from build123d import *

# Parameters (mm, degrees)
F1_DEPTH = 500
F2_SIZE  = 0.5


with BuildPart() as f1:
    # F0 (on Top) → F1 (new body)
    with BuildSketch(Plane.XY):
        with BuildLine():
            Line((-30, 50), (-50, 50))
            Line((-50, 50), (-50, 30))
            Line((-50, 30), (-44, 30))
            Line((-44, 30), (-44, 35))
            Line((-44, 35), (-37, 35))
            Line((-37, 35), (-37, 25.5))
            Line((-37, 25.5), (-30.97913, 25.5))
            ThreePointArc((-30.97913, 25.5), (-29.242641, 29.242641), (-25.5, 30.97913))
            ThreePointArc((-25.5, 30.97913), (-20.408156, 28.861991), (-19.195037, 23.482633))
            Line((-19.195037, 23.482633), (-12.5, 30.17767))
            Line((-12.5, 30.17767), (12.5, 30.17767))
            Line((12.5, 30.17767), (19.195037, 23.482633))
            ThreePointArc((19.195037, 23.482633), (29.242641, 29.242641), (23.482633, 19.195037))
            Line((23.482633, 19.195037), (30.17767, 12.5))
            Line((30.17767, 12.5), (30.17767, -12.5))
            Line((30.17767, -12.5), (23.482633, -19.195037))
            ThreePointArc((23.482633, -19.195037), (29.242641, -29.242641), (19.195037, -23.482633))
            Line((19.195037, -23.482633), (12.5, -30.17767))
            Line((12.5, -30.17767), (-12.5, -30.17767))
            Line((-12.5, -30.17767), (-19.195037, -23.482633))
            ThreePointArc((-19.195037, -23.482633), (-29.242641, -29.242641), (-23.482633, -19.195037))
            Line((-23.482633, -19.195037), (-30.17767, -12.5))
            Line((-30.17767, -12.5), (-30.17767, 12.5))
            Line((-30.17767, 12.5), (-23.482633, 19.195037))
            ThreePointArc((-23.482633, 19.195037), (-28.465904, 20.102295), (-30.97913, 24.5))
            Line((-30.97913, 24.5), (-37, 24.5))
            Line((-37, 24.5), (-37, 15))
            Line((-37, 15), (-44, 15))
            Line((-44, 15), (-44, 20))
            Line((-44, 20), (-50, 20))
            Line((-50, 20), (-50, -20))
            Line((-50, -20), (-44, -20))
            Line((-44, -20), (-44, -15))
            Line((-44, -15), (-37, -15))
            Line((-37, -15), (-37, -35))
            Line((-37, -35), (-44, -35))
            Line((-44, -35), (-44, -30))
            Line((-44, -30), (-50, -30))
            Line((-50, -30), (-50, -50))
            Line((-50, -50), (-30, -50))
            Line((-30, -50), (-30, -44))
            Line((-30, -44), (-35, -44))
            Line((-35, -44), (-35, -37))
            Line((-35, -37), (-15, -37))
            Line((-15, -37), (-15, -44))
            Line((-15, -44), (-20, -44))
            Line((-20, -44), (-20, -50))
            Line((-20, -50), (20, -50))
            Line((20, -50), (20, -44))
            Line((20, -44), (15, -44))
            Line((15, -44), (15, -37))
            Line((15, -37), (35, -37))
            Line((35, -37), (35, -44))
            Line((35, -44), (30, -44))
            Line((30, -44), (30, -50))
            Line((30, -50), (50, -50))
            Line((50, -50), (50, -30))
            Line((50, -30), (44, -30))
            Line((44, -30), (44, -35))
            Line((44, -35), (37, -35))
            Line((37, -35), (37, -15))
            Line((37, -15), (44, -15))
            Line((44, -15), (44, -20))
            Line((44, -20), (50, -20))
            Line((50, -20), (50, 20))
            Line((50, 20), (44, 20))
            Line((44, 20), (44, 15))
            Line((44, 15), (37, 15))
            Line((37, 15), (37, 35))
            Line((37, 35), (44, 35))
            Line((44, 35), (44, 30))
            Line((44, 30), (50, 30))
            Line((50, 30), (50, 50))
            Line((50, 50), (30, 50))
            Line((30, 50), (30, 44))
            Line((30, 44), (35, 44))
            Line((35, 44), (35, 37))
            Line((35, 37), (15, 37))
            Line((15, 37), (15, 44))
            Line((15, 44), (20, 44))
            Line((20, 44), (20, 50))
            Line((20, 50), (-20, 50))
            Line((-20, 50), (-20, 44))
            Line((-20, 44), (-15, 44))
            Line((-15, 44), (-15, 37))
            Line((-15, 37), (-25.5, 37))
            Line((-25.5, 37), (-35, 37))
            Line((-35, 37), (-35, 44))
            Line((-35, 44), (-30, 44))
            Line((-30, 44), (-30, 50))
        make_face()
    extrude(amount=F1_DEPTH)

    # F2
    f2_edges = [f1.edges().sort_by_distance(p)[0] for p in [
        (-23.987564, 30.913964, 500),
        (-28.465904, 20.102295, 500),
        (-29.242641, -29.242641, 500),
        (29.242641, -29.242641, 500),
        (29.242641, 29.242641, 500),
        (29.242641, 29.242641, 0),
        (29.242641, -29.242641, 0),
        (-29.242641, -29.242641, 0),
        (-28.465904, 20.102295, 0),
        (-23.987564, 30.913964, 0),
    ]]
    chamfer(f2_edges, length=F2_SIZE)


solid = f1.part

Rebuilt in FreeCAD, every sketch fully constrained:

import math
import FreeCAD as App
import Part
import Sketcher
from FreeCAD import Vector
Q = App.Units.Quantity


def edges_at(feature, points):
    """Names of the edges that pass closest to the given points."""
    edges = feature.Shape.Edges
    near = lambda p: min(range(len(edges)), key=lambda i: edges[i].distToShape(Part.Vertex(*p))[0])
    return sorted({f"Edge{near(p) + 1}" for p in points})

doc = App.newDocument("Part")
body = doc.addObject("PartDesign::Body", "Body")

# Sketch on XY plane
sketch1 = body.newObject("Sketcher::SketchObject", "Sketch")
sketch1.AttachmentSupport = (doc.getObject("XY_Plane"), [""])
sketch1.MapMode = "FlatFace"
sketch1.addGeometry([
    Part.LineSegment(Vector(-30, 50, 0), Vector(-50, 50, 0)),  # 0
    Part.LineSegment(Vector(-50, 50, 0), Vector(-50, 30, 0)),  # 1
    Part.LineSegment(Vector(-50, 30, 0), Vector(-44, 30, 0)),  # 2
    Part.LineSegment(Vector(-44, 30, 0), Vector(-44, 35, 0)),  # 3
    Part.LineSegment(Vector(-44, 35, 0), Vector(-37, 35, 0)),  # 4
    Part.LineSegment(Vector(-37, 35, 0), Vector(-37, 26, 0)),  # 5
    Part.LineSegment(Vector(-37, 26, 0), Vector(-31, 26, 0)),  # 6
    Part.ArcOfCircle(Part.Circle(Vector(-25, 25, 0), Vector(0, 0, 1), 6), math.radians(95), math.radians(175)),  # 7
    Part.ArcOfCircle(Part.Circle(Vector(-25, 25, 0), Vector(0, 0, 1), 6), math.radians(-15), math.radians(95)),  # 8
    Part.LineSegment(Vector(-19, 23, 0), Vector(-12, 30, 0)),  # 9
    Part.LineSegment(Vector(-12, 30, 0), Vector(12, 30, 0)),  # 10
    Part.LineSegment(Vector(12, 30, 0), Vector(19, 23, 0)),  # 11
    Part.ArcOfCircle(Part.Circle(Vector(25, 25, 0), Vector(0, 0, 1), 6), math.radians(-105), math.radians(195)),  # 12
    Part.LineSegment(Vector(23, 19, 0), Vector(30, 12, 0)),  # 13
    Part.LineSegment(Vector(30, 12, 0), Vector(30, -12, 0)),  # 14
    Part.LineSegment(Vector(30, -12, 0), Vector(23, -19, 0)),  # 15
    Part.ArcOfCircle(Part.Circle(Vector(25, -25, 0), Vector(0, 0, 1), 6), math.radians(165), math.radians(465)),  # 16
    Part.LineSegment(Vector(19, -23, 0), Vector(12, -30, 0)),  # 17
    Part.LineSegment(Vector(12, -30, 0), Vector(-12, -30, 0)),  # 18
    Part.LineSegment(Vector(-12, -30, 0), Vector(-19, -23, 0)),  # 19
    Part.ArcOfCircle(Part.Circle(Vector(-25, -25, 0), Vector(0, 0, 1), 6), math.radians(75), math.radians(375)),  # 20
    Part.LineSegment(Vector(-23, -19, 0), Vector(-30, -12, 0)),  # 21
    Part.LineSegment(Vector(-30, -12, 0), Vector(-30, 12, 0)),  # 22
    Part.LineSegment(Vector(-30, 12, 0), Vector(-23, 19, 0)),  # 23
    Part.ArcOfCircle(Part.Circle(Vector(-25, 25, 0), Vector(0, 0, 1), 6), math.radians(-175), math.radians(-75)),  # 24
    Part.LineSegment(Vector(-31, 24, 0), Vector(-37, 24, 0)),  # 25
    Part.LineSegment(Vector(-37, 24, 0), Vector(-37, 15, 0)),  # 26
    Part.LineSegment(Vector(-37, 15, 0), Vector(-44, 15, 0)),  # 27
    Part.LineSegment(Vector(-44, 15, 0), Vector(-44, 20, 0)),  # 28
    Part.LineSegment(Vector(-44, 20, 0), Vector(-50, 20, 0)),  # 29
    Part.LineSegment(Vector(-50, 20, 0), Vector(-50, -20, 0)),  # 30
    Part.LineSegment(Vector(-50, -20, 0), Vector(-44, -20, 0)),  # 31
    Part.LineSegment(Vector(-44, -20, 0), Vector(-44, -15, 0)),  # 32
    Part.LineSegment(Vector(-44, -15, 0), Vector(-37, -15, 0)),  # 33
    Part.LineSegment(Vector(-37, -15, 0), Vector(-37, -35, 0)),  # 34
    Part.LineSegment(Vector(-37, -35, 0), Vector(-44, -35, 0)),  # 35
    Part.LineSegment(Vector(-44, -35, 0), Vector(-44, -30, 0)),  # 36
    Part.LineSegment(Vector(-44, -30, 0), Vector(-50, -30, 0)),  # 37
    Part.LineSegment(Vector(-50, -30, 0), Vector(-50, -50, 0)),  # 38
    Part.LineSegment(Vector(-50, -50, 0), Vector(-30, -50, 0)),  # 39
    Part.LineSegment(Vector(-30, -50, 0), Vector(-30, -44, 0)),  # 40
    Part.LineSegment(Vector(-30, -44, 0), Vector(-35, -44, 0)),  # 41
    Part.LineSegment(Vector(-35, -44, 0), Vector(-35, -37, 0)),  # 42
    Part.LineSegment(Vector(-35, -37, 0), Vector(-15, -37, 0)),  # 43
    Part.LineSegment(Vector(-15, -37, 0), Vector(-15, -44, 0)),  # 44
    Part.LineSegment(Vector(-15, -44, 0), Vector(-20, -44, 0)),  # 45
    Part.LineSegment(Vector(-20, -44, 0), Vector(-20, -50, 0)),  # 46
    Part.LineSegment(Vector(-20, -50, 0), Vector(20, -50, 0)),  # 47
    Part.LineSegment(Vector(20, -50, 0), Vector(20, -44, 0)),  # 48
    Part.LineSegment(Vector(20, -44, 0), Vector(15, -44, 0)),  # 49
    Part.LineSegment(Vector(15, -44, 0), Vector(15, -37, 0)),  # 50
    Part.LineSegment(Vector(15, -37, 0), Vector(35, -37, 0)),  # 51
    Part.LineSegment(Vector(35, -37, 0), Vector(35, -44, 0)),  # 52
    Part.LineSegment(Vector(35, -44, 0), Vector(30, -44, 0)),  # 53
    Part.LineSegment(Vector(30, -44, 0), Vector(30, -50, 0)),  # 54
    Part.LineSegment(Vector(30, -50, 0), Vector(50, -50, 0)),  # 55
    Part.LineSegment(Vector(50, -50, 0), Vector(50, -30, 0)),  # 56
    Part.LineSegment(Vector(50, -30, 0), Vector(44, -30, 0)),  # 57
    Part.LineSegment(Vector(44, -30, 0), Vector(44, -35, 0)),  # 58
    Part.LineSegment(Vector(44, -35, 0), Vector(37, -35, 0)),  # 59
    Part.LineSegment(Vector(37, -35, 0), Vector(37, -15, 0)),  # 60
    Part.LineSegment(Vector(37, -15, 0), Vector(44, -15, 0)),  # 61
    Part.LineSegment(Vector(44, -15, 0), Vector(44, -20, 0)),  # 62
    Part.LineSegment(Vector(44, -20, 0), Vector(50, -20, 0)),  # 63
    Part.LineSegment(Vector(50, -20, 0), Vector(50, 20, 0)),  # 64
    Part.LineSegment(Vector(50, 20, 0), Vector(44, 20, 0)),  # 65
    Part.LineSegment(Vector(44, 20, 0), Vector(44, 15, 0)),  # 66
    Part.LineSegment(Vector(44, 15, 0), Vector(37, 15, 0)),  # 67
    Part.LineSegment(Vector(37, 15, 0), Vector(37, 35, 0)),  # 68
    Part.LineSegment(Vector(37, 35, 0), Vector(44, 35, 0)),  # 69
    Part.LineSegment(Vector(44, 35, 0), Vector(44, 30, 0)),  # 70
    Part.LineSegment(Vector(44, 30, 0), Vector(50, 30, 0)),  # 71
    Part.LineSegment(Vector(50, 30, 0), Vector(50, 50, 0)),  # 72
    Part.LineSegment(Vector(50, 50, 0), Vector(30, 50, 0)),  # 73
    Part.LineSegment(Vector(30, 50, 0), Vector(30, 44, 0)),  # 74
    Part.LineSegment(Vector(30, 44, 0), Vector(35, 44, 0)),  # 75
    Part.LineSegment(Vector(35, 44, 0), Vector(35, 37, 0)),  # 76
    Part.LineSegment(Vector(35, 37, 0), Vector(15, 37, 0)),  # 77
    Part.LineSegment(Vector(15, 37, 0), Vector(15, 44, 0)),  # 78
    Part.LineSegment(Vector(15, 44, 0), Vector(20, 44, 0)),  # 79
    Part.LineSegment(Vector(20, 44, 0), Vector(20, 50, 0)),  # 80
    Part.LineSegment(Vector(20, 50, 0), Vector(-20, 50, 0)),  # 81
    Part.LineSegment(Vector(-20, 50, 0), Vector(-20, 44, 0)),  # 82
    Part.LineSegment(Vector(-20, 44, 0), Vector(-15, 44, 0)),  # 83
    Part.LineSegment(Vector(-15, 44, 0), Vector(-15, 37, 0)),  # 84
    Part.LineSegment(Vector(-15, 37, 0), Vector(-35, 37, 0)),  # 85
    Part.LineSegment(Vector(-35, 37, 0), Vector(-35, 44, 0)),  # 86
    Part.LineSegment(Vector(-35, 44, 0), Vector(-30, 44, 0)),  # 87
    Part.LineSegment(Vector(-30, 44, 0), Vector(-30, 50, 0)),  # 88
], False)
sketch1.addConstraint([
    Sketcher.Constraint("Coincident", 0, 2, 1, 1),
    Sketcher.Constraint("Coincident", 1, 2, 2, 1),
    Sketcher.Constraint("Coincident", 2, 2, 3, 1),
    Sketcher.Constraint("Coincident", 3, 2, 4, 1),
    Sketcher.Constraint("Coincident", 4, 2, 5, 1),
    Sketcher.Constraint("Coincident", 5, 2, 6, 1),
    Sketcher.Constraint("Coincident", 6, 2, 7, 2),
    Sketcher.Constraint("Tangent", 7, 1, 8, 2),
    Sketcher.Constraint("Coincident", 8, 1, 9, 1),
    Sketcher.Constraint("Coincident", 9, 2, 10, 1),
    Sketcher.Constraint("Coincident", 10, 2, 11, 1),
    Sketcher.Constraint("Coincident", 11, 2, 12, 2),
    Sketcher.Constraint("Coincident", 12, 1, 13, 1),
    Sketcher.Constraint("Coincident", 13, 2, 14, 1),
    Sketcher.Constraint("Coincident", 14, 2, 15, 1),
    Sketcher.Constraint("Coincident", 15, 2, 16, 2),
    Sketcher.Constraint("Coincident", 16, 1, 17, 1),
    Sketcher.Constraint("Coincident", 17, 2, 18, 1),
    Sketcher.Constraint("Coincident", 18, 2, 19, 1),
    Sketcher.Constraint("Coincident", 19, 2, 20, 2),
    Sketcher.Constraint("Coincident", 20, 1, 21, 1),
    Sketcher.Constraint("Coincident", 21, 2, 22, 1),
    Sketcher.Constraint("Coincident", 22, 2, 23, 1),
    Sketcher.Constraint("Coincident", 23, 2, 24, 2),
    Sketcher.Constraint("Coincident", 24, 1, 25, 1),
    Sketcher.Constraint("Coincident", 25, 2, 26, 1),
    Sketcher.Constraint("Coincident", 26, 2, 27, 1),
    Sketcher.Constraint("Coincident", 27, 2, 28, 1),
    Sketcher.Constraint("Coincident", 28, 2, 29, 1),
    Sketcher.Constraint("Coincident", 29, 2, 30, 1),
    Sketcher.Constraint("Coincident", 30, 2, 31, 1),
    Sketcher.Constraint("Coincident", 31, 2, 32, 1),
    Sketcher.Constraint("Coincident", 32, 2, 33, 1),
    Sketcher.Constraint("Coincident", 33, 2, 34, 1),
    Sketcher.Constraint("Coincident", 34, 2, 35, 1),
    Sketcher.Constraint("Coincident", 35, 2, 36, 1),
    Sketcher.Constraint("Coincident", 36, 2, 37, 1),
    Sketcher.Constraint("Coincident", 37, 2, 38, 1),
    Sketcher.Constraint("Coincident", 38, 2, 39, 1),
    Sketcher.Constraint("Coincident", 39, 2, 40, 1),
    Sketcher.Constraint("Coincident", 40, 2, 41, 1),
    Sketcher.Constraint("Coincident", 41, 2, 42, 1),
    Sketcher.Constraint("Coincident", 42, 2, 43, 1),
    Sketcher.Constraint("Coincident", 43, 2, 44, 1),
    Sketcher.Constraint("Coincident", 44, 2, 45, 1),
    Sketcher.Constraint("Coincident", 45, 2, 46, 1),
    Sketcher.Constraint("Coincident", 46, 2, 47, 1),
    Sketcher.Constraint("Coincident", 47, 2, 48, 1),
    Sketcher.Constraint("Coincident", 48, 2, 49, 1),
    Sketcher.Constraint("Coincident", 49, 2, 50, 1),
    Sketcher.Constraint("Coincident", 50, 2, 51, 1),
    Sketcher.Constraint("Coincident", 51, 2, 52, 1),
    Sketcher.Constraint("Coincident", 52, 2, 53, 1),
    Sketcher.Constraint("Coincident", 53, 2, 54, 1),
    Sketcher.Constraint("Coincident", 54, 2, 55, 1),
    Sketcher.Constraint("Coincident", 55, 2, 56, 1),
    Sketcher.Constraint("Coincident", 56, 2, 57, 1),
    Sketcher.Constraint("Coincident", 57, 2, 58, 1),
    Sketcher.Constraint("Coincident", 58, 2, 59, 1),
    Sketcher.Constraint("Coincident", 59, 2, 60, 1),
    Sketcher.Constraint("Coincident", 60, 2, 61, 1),
    Sketcher.Constraint("Coincident", 61, 2, 62, 1),
    Sketcher.Constraint("Coincident", 62, 2, 63, 1),
    Sketcher.Constraint("Coincident", 63, 2, 64, 1),
    Sketcher.Constraint("Coincident", 64, 2, 65, 1),
    Sketcher.Constraint("Coincident", 65, 2, 66, 1),
    Sketcher.Constraint("Coincident", 66, 2, 67, 1),
    Sketcher.Constraint("Coincident", 67, 2, 68, 1),
    Sketcher.Constraint("Coincident", 68, 2, 69, 1),
    Sketcher.Constraint("Coincident", 69, 2, 70, 1),
    Sketcher.Constraint("Coincident", 70, 2, 71, 1),
    Sketcher.Constraint("Coincident", 71, 2, 72, 1),
    Sketcher.Constraint("Coincident", 72, 2, 73, 1),
    Sketcher.Constraint("Coincident", 73, 2, 74, 1),
    Sketcher.Constraint("Coincident", 74, 2, 75, 1),
    Sketcher.Constraint("Coincident", 75, 2, 76, 1),
    Sketcher.Constraint("Coincident", 76, 2, 77, 1),
    Sketcher.Constraint("Coincident", 77, 2, 78, 1),
    Sketcher.Constraint("Coincident", 78, 2, 79, 1),
    Sketcher.Constraint("Coincident", 79, 2, 80, 1),
    Sketcher.Constraint("Coincident", 80, 2, 81, 1),
    Sketcher.Constraint("Coincident", 81, 2, 82, 1),
    Sketcher.Constraint("Coincident", 82, 2, 83, 1),
    Sketcher.Constraint("Coincident", 83, 2, 84, 1),
    Sketcher.Constraint("Coincident", 84, 2, 85, 1),
    Sketcher.Constraint("Coincident", 85, 2, 86, 1),
    Sketcher.Constraint("Coincident", 86, 2, 87, 1),
    Sketcher.Constraint("Coincident", 87, 2, 88, 1),
    Sketcher.Constraint("Coincident", 88, 2, 0, 1),
    Sketcher.Constraint("Horizontal", 0),
    Sketcher.Constraint("Vertical", 1),
    Sketcher.Constraint("Horizontal", 2),
    Sketcher.Constraint("Vertical", 3),
    Sketcher.Constraint("Horizontal", 4),
    Sketcher.Constraint("Vertical", 5),
    Sketcher.Constraint("Horizontal", 6),
    Sketcher.Constraint("Horizontal", 10),
    Sketcher.Constraint("Vertical", 14),
    Sketcher.Constraint("Horizontal", 18),
    Sketcher.Constraint("Vertical", 22),
    Sketcher.Constraint("Horizontal", 25),
    Sketcher.Constraint("Vertical", 26),
    Sketcher.Constraint("Horizontal", 27),
    Sketcher.Constraint("Vertical", 28),
    Sketcher.Constraint("Horizontal", 29),
    Sketcher.Constraint("Vertical", 30),
    Sketcher.Constraint("Horizontal", 31),
    Sketcher.Constraint("Vertical", 32),
    Sketcher.Constraint("Horizontal", 33),
    Sketcher.Constraint("Vertical", 34),
    Sketcher.Constraint("Horizontal", 35),
    Sketcher.Constraint("Vertical", 36),
    Sketcher.Constraint("Horizontal", 37),
    Sketcher.Constraint("Vertical", 38),
    Sketcher.Constraint("Horizontal", 39),
    Sketcher.Constraint("Vertical", 40),
    Sketcher.Constraint("Horizontal", 41),
    Sketcher.Constraint("Vertical", 42),
    Sketcher.Constraint("Horizontal", 43),
    Sketcher.Constraint("Vertical", 44),
    Sketcher.Constraint("Horizontal", 45),
    Sketcher.Constraint("Vertical", 46),
    Sketcher.Constraint("Horizontal", 47),
    Sketcher.Constraint("Vertical", 48),
    Sketcher.Constraint("Horizontal", 49),
    Sketcher.Constraint("Vertical", 50),
    Sketcher.Constraint("Horizontal", 51),
    Sketcher.Constraint("Vertical", 52),
    Sketcher.Constraint("Horizontal", 53),
    Sketcher.Constraint("Vertical", 54),
    Sketcher.Constraint("Horizontal", 55),
    Sketcher.Constraint("Vertical", 56),
    Sketcher.Constraint("Horizontal", 57),
    Sketcher.Constraint("Vertical", 58),
    Sketcher.Constraint("Horizontal", 59),
    Sketcher.Constraint("Vertical", 60),
    Sketcher.Constraint("Horizontal", 61),
    Sketcher.Constraint("Vertical", 62),
    Sketcher.Constraint("Horizontal", 63),
    Sketcher.Constraint("Vertical", 64),
    Sketcher.Constraint("Horizontal", 65),
    Sketcher.Constraint("Vertical", 66),
    Sketcher.Constraint("Horizontal", 67),
    Sketcher.Constraint("Vertical", 68),
    Sketcher.Constraint("Horizontal", 69),
    Sketcher.Constraint("Vertical", 70),
    Sketcher.Constraint("Horizontal", 71),
    Sketcher.Constraint("Vertical", 72),
    Sketcher.Constraint("Horizontal", 73),
    Sketcher.Constraint("Vertical", 74),
    Sketcher.Constraint("Horizontal", 75),
    Sketcher.Constraint("Vertical", 76),
    Sketcher.Constraint("Horizontal", 77),
    Sketcher.Constraint("Vertical", 78),
    Sketcher.Constraint("Horizontal", 79),
    Sketcher.Constraint("Vertical", 80),
    Sketcher.Constraint("Horizontal", 81),
    Sketcher.Constraint("Vertical", 82),
    Sketcher.Constraint("Horizontal", 83),
    Sketcher.Constraint("Vertical", 84),
    Sketcher.Constraint("Horizontal", 85),
    Sketcher.Constraint("Vertical", 86),
    Sketcher.Constraint("Horizontal", 87),
    Sketcher.Constraint("Vertical", 88),
    Sketcher.Constraint("Coincident", 24, 3, 7, 3),
    Sketcher.Constraint("Equal", 7, 8),
    Sketcher.Constraint("Equal", 8, 12),
    Sketcher.Constraint("Equal", 12, 16),
    Sketcher.Constraint("Equal", 16, 20),
    Sketcher.Constraint("Equal", 20, 24),
    Sketcher.Constraint("Symmetric", 7, 3, 16, 3, -1, 1),
    Sketcher.Constraint("Symmetric", 12, 3, 20, 3, -1, 1),
    Sketcher.Constraint("Symmetric", 9, 2, 17, 2, -1, 1),
    Sketcher.Constraint("Symmetric", 13, 2, 21, 2, -1, 1),
    Sketcher.Constraint("Symmetric", 0, 2, 55, 2, -1, 1),
    Sketcher.Constraint("Symmetric", 2, 2, 57, 2, -1, 1),
    Sketcher.Constraint("Symmetric", 4, 2, 59, 2, -1, 1),
    Sketcher.Constraint("Symmetric", 26, 2, 60, 2, -1, 1),
    Sketcher.Constraint("Symmetric", 28, 2, 62, 2, -1, 1),
    Sketcher.Constraint("Symmetric", 30, 2, 64, 2, -1, 1),
    Sketcher.Constraint("Symmetric", 32, 2, 66, 2, -1, 1),
    Sketcher.Constraint("Symmetric", 34, 2, 68, 2, -1, 1),
    Sketcher.Constraint("Symmetric", 36, 2, 70, 2, -1, 1),
    Sketcher.Constraint("Symmetric", 38, 2, 72, 2, -1, 1),
    Sketcher.Constraint("Symmetric", 40, 2, 74, 2, -1, 1),
    Sketcher.Constraint("Symmetric", 42, 2, 76, 2, -1, 1),
    Sketcher.Constraint("Symmetric", 44, 2, 78, 2, -1, 1),
    Sketcher.Constraint("Symmetric", 46, 2, 80, 2, -1, 1),
    Sketcher.Constraint("Symmetric", 48, 2, 82, 2, -1, 1),
    Sketcher.Constraint("Symmetric", 50, 2, 84, 2, -1, 1),
    Sketcher.Constraint("Symmetric", 52, 2, 86, 2, -1, 1),
    Sketcher.Constraint("Symmetric", 7, 3, 12, 3, -2),
    Sketcher.Constraint("Symmetric", 45, 2, 48, 2, -2),
    Sketcher.Constraint("Symmetric", 43, 2, 50, 2, -2),
    Sketcher.Constraint("Symmetric", 41, 2, 52, 2, -2),
    Sketcher.Constraint("Symmetric", 39, 2, 54, 2, -2),
    Sketcher.Constraint("Symmetric", 37, 2, 56, 2, -2),
    Sketcher.Constraint("Symmetric", 35, 2, 58, 2, -2),
    Sketcher.Constraint("Symmetric", 33, 2, 60, 2, -2),
    Sketcher.Constraint("Symmetric", 31, 2, 62, 2, -2),
    Sketcher.Constraint("Perpendicular", 9, 11),
    Sketcher.Constraint("Parallel", 11, 13),
    Sketcher.Constraint("Perpendicular", 13, 15),
    Sketcher.Constraint("Parallel", 15, 17),
    Sketcher.Constraint("Perpendicular", 17, 19),
    Sketcher.Constraint("Parallel", 19, 21),
    Sketcher.Constraint("Perpendicular", 21, 23),
    Sketcher.Constraint("Horizontal", 8, 1, 11, 2),
    Sketcher.Constraint("Horizontal", 16, 1, 19, 2),
    Sketcher.Constraint("Horizontal", 15, 2, 20, 1),
    Sketcher.Constraint("Horizontal", 14, 2, 21, 2),
    Sketcher.Constraint("Horizontal", 13, 2, 22, 2),
    Sketcher.Constraint("Horizontal", 41, 2, 44, 2),
    Sketcher.Constraint("Horizontal", 39, 2, 46, 2),
    Sketcher.Constraint("Vertical", 6, 2, 24, 1),
    Sketcher.Constraint("Vertical", 3, 2, 27, 2),
    Sketcher.Constraint("Vertical", 1, 2, 29, 2),
    Sketcher.Constraint("Vertical", 40, 2, 87, 2),
    Sketcher.Constraint("Equal", 39, 43),
    Sketcher.Constraint("Equal", 41, 45),
    Sketcher.Constraint("Equal", 85, 1),
    Sketcher.Constraint("Equal", 87, 3),
    Sketcher.Constraint("Equal", 18, 14),
    Sketcher.Constraint("Equal", 5, 26),
    Sketcher.Constraint("Equal", 3, 28),
    Sketcher.Constraint("Equal", 81, 30),
    Sketcher.Constraint("Equal", 1, 34),
    Sketcher.Constraint("Equal", 71, 40),
    Sketcher.Constraint("Equal", 69, 42),
    Sketcher.Constraint("Equal", 11, 13),
    Sketcher.Constraint("Radius", 8, Q("5.999999 mm")),
    Sketcher.Constraint("DistanceX", 0, 2, 0, 1, Q("20 mm")),
    Sketcher.Constraint("DistanceX", 2, 1, 2, 2, Q("6 mm")),
    Sketcher.Constraint("DistanceX", 4, 1, 4, 2, Q("7 mm")),
    Sketcher.Constraint("DistanceX", 10, 1, 10, 2, Q("25 mm")),
    Sketcher.Constraint("DistanceX", 41, 2, 41, 1, Q("5 mm")),
    Sketcher.Constraint("DistanceX", 47, 1, 47, 2, Q("40 mm")),
    Sketcher.Constraint("DistanceY", 5, 2, 5, 1, Q("9.5 mm")),
    Sketcher.Constraint("DistanceX", 8, 3, -1, 1, Q("24.999999 mm")),
    Sketcher.Constraint("DistanceX", 7, 1, -1, 1, Q("25.5 mm")),
    Sketcher.Constraint("DistanceY", -1, 1, 9, 2, Q("30.17767 mm")),
])
pad1 = body.newObject("PartDesign::Pad", "Pad")
pad1.Profile = sketch1
pad1.Length = 500
doc.recompute()

chamfer = body.newObject("PartDesign::Chamfer", "Chamfer")
chamfer.Base = (pad1, edges_at(pad1, [
    (-20.408, 28.862, 500),
    (-28.466, 20.102, 500),
    (-29.243, -29.243, 500),
    (29.243, -29.243, 500),
    (29.243, 29.243, 500),
    (29.243, 29.243, 0),
    (29.243, -29.243, 0),
    (-29.243, -29.243, 0),
    (-28.466, 20.102, 0),
    (-20.408, 28.862, 0),
]))
chamfer.Size = 0.5

doc.recompute()
